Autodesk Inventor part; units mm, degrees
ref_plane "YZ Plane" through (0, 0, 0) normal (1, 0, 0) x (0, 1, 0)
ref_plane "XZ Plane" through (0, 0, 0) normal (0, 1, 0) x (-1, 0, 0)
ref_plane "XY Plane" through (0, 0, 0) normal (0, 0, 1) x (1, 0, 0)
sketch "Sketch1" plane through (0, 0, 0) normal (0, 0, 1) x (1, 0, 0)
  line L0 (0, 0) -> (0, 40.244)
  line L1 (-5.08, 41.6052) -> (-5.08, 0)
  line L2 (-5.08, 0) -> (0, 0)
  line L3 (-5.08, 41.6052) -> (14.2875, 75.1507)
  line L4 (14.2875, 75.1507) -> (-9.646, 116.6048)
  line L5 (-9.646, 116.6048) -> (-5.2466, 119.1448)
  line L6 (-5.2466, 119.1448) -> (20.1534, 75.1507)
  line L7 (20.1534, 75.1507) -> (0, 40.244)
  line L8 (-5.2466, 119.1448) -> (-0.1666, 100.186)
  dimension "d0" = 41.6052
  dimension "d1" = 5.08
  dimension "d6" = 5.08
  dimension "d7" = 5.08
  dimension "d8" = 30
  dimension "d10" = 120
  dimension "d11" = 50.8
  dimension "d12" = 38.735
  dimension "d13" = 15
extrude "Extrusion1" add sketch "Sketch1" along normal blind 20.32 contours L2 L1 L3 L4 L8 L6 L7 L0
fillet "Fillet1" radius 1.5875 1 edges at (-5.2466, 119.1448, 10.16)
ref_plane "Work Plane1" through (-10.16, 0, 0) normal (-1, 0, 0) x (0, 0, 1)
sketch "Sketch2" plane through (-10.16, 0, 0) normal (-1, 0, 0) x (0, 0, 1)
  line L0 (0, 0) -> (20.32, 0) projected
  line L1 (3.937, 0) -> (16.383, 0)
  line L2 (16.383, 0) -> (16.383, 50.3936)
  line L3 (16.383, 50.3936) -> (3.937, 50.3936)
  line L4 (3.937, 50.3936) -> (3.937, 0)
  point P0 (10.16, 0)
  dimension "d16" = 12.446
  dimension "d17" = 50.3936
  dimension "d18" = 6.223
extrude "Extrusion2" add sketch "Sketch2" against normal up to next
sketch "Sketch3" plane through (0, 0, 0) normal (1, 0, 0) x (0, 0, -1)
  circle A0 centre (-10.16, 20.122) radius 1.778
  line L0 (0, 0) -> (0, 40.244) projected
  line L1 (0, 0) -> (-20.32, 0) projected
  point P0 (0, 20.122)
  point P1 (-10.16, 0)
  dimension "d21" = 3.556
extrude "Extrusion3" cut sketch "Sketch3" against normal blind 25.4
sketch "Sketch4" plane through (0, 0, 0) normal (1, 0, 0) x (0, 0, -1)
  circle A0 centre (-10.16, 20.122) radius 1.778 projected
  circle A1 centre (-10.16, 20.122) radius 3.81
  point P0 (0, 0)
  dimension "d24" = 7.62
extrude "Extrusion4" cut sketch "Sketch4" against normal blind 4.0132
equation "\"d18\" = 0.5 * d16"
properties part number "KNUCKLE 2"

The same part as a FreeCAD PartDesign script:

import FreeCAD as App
import Part
import Sketcher
Q = App.Units.Quantity


def edges_at(feature, points):
    """Names of the edges that pass closest to the given points."""
    edges = feature.Shape.Edges
    near = lambda p: min(range(len(edges)), key=lambda i: edges[i].distToShape(Part.Vertex(*p))[0])
    return sorted({f"Edge{near(p) + 1}" for p in points})


def add_polygon(sketch, points):
    """Adds a closed chain of lines whose ends are joined by coincident constraints."""
    first, n = sketch.GeometryCount, len(points)
    for a, b in zip(points, points[1:] + points[:1]):
        sketch.addGeometry(Part.LineSegment(App.Vector(*a, 0), App.Vector(*b, 0)), False)
    for i in range(n):
        sketch.addConstraint(Sketcher.Constraint("Coincident", first + i, 2, first + (i + 1) % n, 1))

doc = App.newDocument("Part")
body = doc.addObject("PartDesign::Body", "Body")

sketch1 = body.newObject("Sketcher::SketchObject", "Sketch")
sketch1.AttachmentSupport = (doc.getObject("XY_Plane"), [""])
sketch1.MapMode = "FlatFace"
add_polygon(sketch1, [(-5, 0), (0, 0), (0, 40), (20, 75), (-5, 119), (0, 100), (14, 75), (-5, 42)])
sketch1.addConstraint([
    Sketcher.Constraint("Horizontal", 0),
    Sketcher.Constraint("Vertical", 1),
    Sketcher.Constraint("Vertical", 7),
    Sketcher.Constraint("Coincident", 0, 2, -1, 1),
    Sketcher.Constraint("Parallel", 3, 5),
    Sketcher.Constraint("Parallel", 2, 6),
    Sketcher.Constraint("Horizontal", 2, 2, 5, 2),
    Sketcher.Constraint("Distance", 3, Q("2 in")),
    Sketcher.Constraint("DistanceX", 0, 1, 0, 2, Q("0.2 in")),
    Sketcher.Constraint("Angle", 3, Q("120 deg")),
    Sketcher.Constraint("Angle", 6, Q("-120 deg")),
    Sketcher.Constraint("DistanceX", 3, 2, 4, 2, Q("0.2 in")),
    Sketcher.Constraint("DistanceY", 7, 2, 7, 1, Q("1.638 in")),
    Sketcher.Constraint("Distance", 6, Q("1.525 in")),
    Sketcher.Constraint("Angle", 4, Q("-75 deg")),
])
pad1 = body.newObject("PartDesign::Pad", "Pad")
pad1.Profile = sketch1
pad1.Length = Q("0.8 in")
doc.recompute()

fillet = body.newObject("PartDesign::Fillet", "Fillet")
fillet.Base = (pad1, edges_at(pad1, [(-5.247, 119.145, 10.16)]))
fillet.Radius = Q("0.0625 in")

sketch2 = body.newObject("Sketcher::SketchObject", "Sketch001")
sketch2.AttachmentSupport = (doc.getObject("YZ_Plane"), [""])
sketch2.MapMode = "FlatFace"
sketch2.AttachmentOffset = App.Placement(App.Vector(0, 0, -0.4 * 25.4), App.Rotation())
add_polygon(sketch2, [(50, 4), (0, 4), (0, 16), (50, 16)])
sketch2.addConstraint([
    Sketcher.Constraint("Horizontal", 0),
    Sketcher.Constraint("Vertical", 1),
    Sketcher.Constraint("Horizontal", 2),
    Sketcher.Constraint("Vertical", 3),
    Sketcher.Constraint("PointOnObject", 0, 2, -2),
    Sketcher.Constraint("DistanceY", 1, 1, 1, 2, Q("0.49 in")),
    Sketcher.Constraint("DistanceX", 0, 2, 0, 1, Q("1.984 in")),
    Sketcher.Constraint("DistanceY", -1, 1, 0, 2, Q("0.155 in")),
])
pad2 = body.newObject("PartDesign::Pad", "Pad001")
pad2.Profile = sketch2
pad2.Length = 10.154

sketch3 = body.newObject("Sketcher::SketchObject", "Sketch002")
sketch3.AttachmentSupport = (doc.getObject("YZ_Plane"), [""])
sketch3.MapMode = "FlatFace"
sketch3.addGeometry(Part.Circle(App.Vector(20.1, 10.2, 0), App.Vector(0, 0, 1), 1.8), False)
sketch3.addConstraint([
    Sketcher.Constraint("Diameter", 0, Q("0.14 in")),
    Sketcher.Constraint("DistanceY", -1, 1, 0, 3, Q("0.4 in")),
    Sketcher.Constraint("DistanceX", -1, 1, 0, 3, Q("0.7922 in")),
])
pocket1 = body.newObject("PartDesign::Pocket", "Pocket")
pocket1.Profile = sketch3
pocket1.Length = Q("1 in")

sketch4 = body.newObject("Sketcher::SketchObject", "Sketch003")
sketch4.AttachmentSupport = (doc.getObject("YZ_Plane"), [""])
sketch4.MapMode = "FlatFace"
sketch4.addGeometry([
    Part.Circle(App.Vector(20.1, 10.2, 0), App.Vector(0, 0, 1), 3.8),
    Part.Circle(App.Vector(20.1, 10.2, 0), App.Vector(0, 0, 1), 1.8),
], False)
sketch4.addConstraint([
    Sketcher.Constraint("Coincident", 1, 3, 0, 3),
    Sketcher.Constraint("Diameter", 0, Q("0.3 in")),
    Sketcher.Constraint("Diameter", 1, Q("0.14 in")),
    Sketcher.Constraint("DistanceY", -1, 1, 0, 3, Q("0.4 in")),
    Sketcher.Constraint("DistanceX", -1, 1, 0, 3, Q("0.7922 in")),
])
pocket2 = body.newObject("PartDesign::Pocket", "Pocket001")
pocket2.Profile = sketch4
pocket2.Length = Q("0.158 in")

doc.recompute()
